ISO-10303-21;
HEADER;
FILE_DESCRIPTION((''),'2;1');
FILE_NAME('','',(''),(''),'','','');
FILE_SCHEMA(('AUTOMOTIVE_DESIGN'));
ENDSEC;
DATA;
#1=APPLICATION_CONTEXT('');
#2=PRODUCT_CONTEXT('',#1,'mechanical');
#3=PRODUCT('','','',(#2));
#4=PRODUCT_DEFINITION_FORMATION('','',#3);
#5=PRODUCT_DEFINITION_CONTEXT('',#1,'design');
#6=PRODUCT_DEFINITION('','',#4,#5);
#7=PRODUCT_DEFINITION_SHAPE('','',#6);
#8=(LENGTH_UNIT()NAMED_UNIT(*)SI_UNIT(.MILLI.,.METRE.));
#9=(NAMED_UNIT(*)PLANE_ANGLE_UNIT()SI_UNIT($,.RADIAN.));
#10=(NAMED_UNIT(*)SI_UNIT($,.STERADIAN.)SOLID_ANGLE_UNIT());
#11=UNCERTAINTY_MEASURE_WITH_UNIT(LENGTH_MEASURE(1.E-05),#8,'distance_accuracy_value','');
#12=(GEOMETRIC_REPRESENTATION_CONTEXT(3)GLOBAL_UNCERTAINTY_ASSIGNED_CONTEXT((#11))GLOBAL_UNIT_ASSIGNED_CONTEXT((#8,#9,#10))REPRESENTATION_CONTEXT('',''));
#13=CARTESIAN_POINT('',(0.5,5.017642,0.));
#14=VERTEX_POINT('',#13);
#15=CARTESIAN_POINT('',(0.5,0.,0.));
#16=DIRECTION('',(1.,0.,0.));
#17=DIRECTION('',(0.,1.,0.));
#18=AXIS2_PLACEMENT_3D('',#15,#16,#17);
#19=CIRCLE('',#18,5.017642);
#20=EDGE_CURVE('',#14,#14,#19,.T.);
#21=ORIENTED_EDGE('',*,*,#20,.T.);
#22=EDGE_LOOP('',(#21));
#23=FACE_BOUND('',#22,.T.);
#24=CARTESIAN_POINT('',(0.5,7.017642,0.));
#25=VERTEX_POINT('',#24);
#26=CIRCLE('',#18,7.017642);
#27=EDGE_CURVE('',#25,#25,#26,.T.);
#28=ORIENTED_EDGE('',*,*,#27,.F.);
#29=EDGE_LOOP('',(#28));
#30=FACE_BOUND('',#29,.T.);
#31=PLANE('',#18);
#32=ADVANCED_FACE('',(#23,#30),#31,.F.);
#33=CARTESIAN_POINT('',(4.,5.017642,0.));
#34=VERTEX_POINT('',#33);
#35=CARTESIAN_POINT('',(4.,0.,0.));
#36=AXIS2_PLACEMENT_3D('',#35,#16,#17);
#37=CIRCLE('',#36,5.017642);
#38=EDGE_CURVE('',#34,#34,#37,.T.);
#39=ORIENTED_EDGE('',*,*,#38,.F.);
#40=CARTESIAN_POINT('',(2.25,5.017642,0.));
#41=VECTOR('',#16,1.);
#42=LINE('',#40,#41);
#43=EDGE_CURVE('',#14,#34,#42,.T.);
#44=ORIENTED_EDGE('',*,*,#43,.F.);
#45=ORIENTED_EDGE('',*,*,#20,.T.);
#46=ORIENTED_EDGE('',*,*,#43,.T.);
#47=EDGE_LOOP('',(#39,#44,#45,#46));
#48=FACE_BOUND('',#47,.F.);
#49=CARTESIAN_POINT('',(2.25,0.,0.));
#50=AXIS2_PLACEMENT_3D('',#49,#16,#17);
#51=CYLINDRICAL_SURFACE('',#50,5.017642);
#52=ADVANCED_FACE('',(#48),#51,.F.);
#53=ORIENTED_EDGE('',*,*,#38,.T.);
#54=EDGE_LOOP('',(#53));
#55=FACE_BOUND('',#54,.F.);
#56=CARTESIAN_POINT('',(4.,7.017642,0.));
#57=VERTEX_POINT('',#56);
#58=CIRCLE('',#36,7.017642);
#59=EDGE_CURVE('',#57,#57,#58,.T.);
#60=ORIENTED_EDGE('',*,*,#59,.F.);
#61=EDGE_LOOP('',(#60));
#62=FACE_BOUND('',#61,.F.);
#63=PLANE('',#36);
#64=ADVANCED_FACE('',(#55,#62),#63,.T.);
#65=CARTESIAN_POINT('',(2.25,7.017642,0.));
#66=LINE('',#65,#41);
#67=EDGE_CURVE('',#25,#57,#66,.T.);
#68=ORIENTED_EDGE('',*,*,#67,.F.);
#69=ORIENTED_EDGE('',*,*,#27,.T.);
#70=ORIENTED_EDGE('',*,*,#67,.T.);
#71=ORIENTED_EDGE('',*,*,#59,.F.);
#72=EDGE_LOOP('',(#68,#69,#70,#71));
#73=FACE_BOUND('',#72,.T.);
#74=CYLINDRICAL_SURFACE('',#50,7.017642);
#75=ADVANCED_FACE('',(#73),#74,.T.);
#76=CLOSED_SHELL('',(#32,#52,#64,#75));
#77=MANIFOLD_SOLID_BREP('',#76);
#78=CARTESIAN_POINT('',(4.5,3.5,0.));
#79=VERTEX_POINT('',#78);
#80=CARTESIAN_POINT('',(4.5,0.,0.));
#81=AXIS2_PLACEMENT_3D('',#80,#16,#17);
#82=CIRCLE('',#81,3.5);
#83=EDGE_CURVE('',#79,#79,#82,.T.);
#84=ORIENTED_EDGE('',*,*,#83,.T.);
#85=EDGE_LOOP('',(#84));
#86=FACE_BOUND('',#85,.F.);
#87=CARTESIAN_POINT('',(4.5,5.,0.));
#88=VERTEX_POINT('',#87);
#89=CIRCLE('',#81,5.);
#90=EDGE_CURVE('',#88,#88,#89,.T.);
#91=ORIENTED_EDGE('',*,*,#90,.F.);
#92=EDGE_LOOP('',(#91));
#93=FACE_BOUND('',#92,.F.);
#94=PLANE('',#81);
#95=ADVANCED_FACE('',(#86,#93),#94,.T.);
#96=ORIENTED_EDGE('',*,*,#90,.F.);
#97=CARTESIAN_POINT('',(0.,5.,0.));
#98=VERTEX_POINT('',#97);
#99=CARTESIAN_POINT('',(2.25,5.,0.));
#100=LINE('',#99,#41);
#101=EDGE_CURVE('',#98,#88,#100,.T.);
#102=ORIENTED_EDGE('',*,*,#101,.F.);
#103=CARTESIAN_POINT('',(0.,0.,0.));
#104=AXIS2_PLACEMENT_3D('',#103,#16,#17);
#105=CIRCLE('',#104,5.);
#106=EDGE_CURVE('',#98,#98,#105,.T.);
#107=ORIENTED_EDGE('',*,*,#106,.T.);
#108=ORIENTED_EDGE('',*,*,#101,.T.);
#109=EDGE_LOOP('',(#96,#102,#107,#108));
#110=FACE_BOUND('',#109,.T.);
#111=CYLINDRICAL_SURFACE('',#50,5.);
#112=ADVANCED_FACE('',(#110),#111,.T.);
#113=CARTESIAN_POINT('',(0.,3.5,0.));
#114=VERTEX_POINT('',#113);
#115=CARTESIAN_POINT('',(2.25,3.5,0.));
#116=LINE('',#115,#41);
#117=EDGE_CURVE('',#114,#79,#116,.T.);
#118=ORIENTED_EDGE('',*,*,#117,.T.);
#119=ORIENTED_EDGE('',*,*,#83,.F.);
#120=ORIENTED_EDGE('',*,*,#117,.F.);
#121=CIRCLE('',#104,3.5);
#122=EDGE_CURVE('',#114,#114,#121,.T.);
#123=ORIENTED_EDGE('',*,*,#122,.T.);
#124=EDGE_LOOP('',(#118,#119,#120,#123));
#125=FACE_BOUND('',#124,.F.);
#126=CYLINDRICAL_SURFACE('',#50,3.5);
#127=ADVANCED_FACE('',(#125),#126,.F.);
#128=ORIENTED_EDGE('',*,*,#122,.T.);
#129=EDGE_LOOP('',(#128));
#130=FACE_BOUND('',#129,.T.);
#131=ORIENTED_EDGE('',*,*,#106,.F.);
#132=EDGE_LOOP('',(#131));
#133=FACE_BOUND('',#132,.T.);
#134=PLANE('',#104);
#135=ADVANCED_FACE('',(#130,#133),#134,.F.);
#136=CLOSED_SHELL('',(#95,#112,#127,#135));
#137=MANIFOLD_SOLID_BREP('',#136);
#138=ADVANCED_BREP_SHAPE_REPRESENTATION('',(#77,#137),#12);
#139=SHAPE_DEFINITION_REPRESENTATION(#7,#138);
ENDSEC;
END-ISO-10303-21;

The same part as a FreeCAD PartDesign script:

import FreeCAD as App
import Part
import Sketcher

V = App.Vector

doc = App.newDocument("Part")
body = doc.addObject("PartDesign::Body", "Body")

sketch1 = body.newObject("Sketcher::SketchObject", "Sketch")
sketch1.AttachmentSupport = (doc.getObject("XY_Plane"), [""])
sketch1.MapMode = "FlatFace"
sketch1.addGeometry(Part.LineSegment(V(0, 5, 0), V(0, 3.5, 0)), False)
sketch1.addGeometry(Part.LineSegment(V(0, 3.5, 0), V(4.5, 3.5, 0)), False)
sketch1.addGeometry(Part.LineSegment(V(4.5, 3.5, 0), V(4.5, 5, 0)), False)
sketch1.addGeometry(Part.LineSegment(V(4.5, 5, 0), V(0, 5, 0)), False)
sketch1.addConstraint(Sketcher.Constraint("Coincident", 0, 2, 1, 1))
sketch1.addConstraint(Sketcher.Constraint("Coincident", 1, 2, 2, 1))
sketch1.addConstraint(Sketcher.Constraint("Coincident", 2, 2, 3, 1))
sketch1.addConstraint(Sketcher.Constraint("Coincident", 3, 2, 0, 1))
sketch1.addConstraint(Sketcher.Constraint("Vertical", 0))
sketch1.addConstraint(Sketcher.Constraint("Horizontal", 1))
sketch1.addConstraint(Sketcher.Constraint("Vertical", 2))
sketch1.addConstraint(Sketcher.Constraint("Horizontal", 3))
sketch1.addConstraint(Sketcher.Constraint("PointOnObject", 0, 2, -2))
sketch1.addConstraint(Sketcher.Constraint("DistanceX", 1, 1, 1, 2, 4.5))
sketch1.addConstraint(Sketcher.Constraint("DistanceY", 0, 2, 0, 1, 1.5))
sketch1.addConstraint(Sketcher.Constraint("DistanceY", -1, 1, 2, 2, 5.0))
revolution = body.newObject("PartDesign::Revolution", "Revolution")
revolution.Profile = sketch1
revolution.ReferenceAxis = (sketch1, ["H_Axis"])
revolution.Angle = 360
body2 = doc.addObject("PartDesign::Body", "Body001")

sketch2 = body2.newObject("Sketcher::SketchObject", "Sketch001")
sketch2.AttachmentSupport = (doc.getObject("XY_Plane001"), [""])
sketch2.MapMode = "FlatFace"
sketch2.addGeometry(Part.LineSegment(V(0.5, 7, 0), V(0.5, 5, 0)), False)
sketch2.addGeometry(Part.LineSegment(V(0.5, 5, 0), V(4, 5, 0)), False)
sketch2.addGeometry(Part.LineSegment(V(4, 5, 0), V(4, 7, 0)), False)
sketch2.addGeometry(Part.LineSegment(V(4, 7, 0), V(0.5, 7, 0)), False)
sketch2.addConstraint(Sketcher.Constraint("Coincident", 0, 2, 1, 1))
sketch2.addConstraint(Sketcher.Constraint("Coincident", 1, 2, 2, 1))
sketch2.addConstraint(Sketcher.Constraint("Coincident", 2, 2, 3, 1))
sketch2.addConstraint(Sketcher.Constraint("Coincident", 3, 2, 0, 1))
sketch2.addConstraint(Sketcher.Constraint("Vertical", 0))
sketch2.addConstraint(Sketcher.Constraint("Horizontal", 1))
sketch2.addConstraint(Sketcher.Constraint("Vertical", 2))
sketch2.addConstraint(Sketcher.Constraint("Horizontal", 3))
sketch2.addConstraint(Sketcher.Constraint("DistanceY", 0, 2, 0, 1, 2.0))
sketch2.addConstraint(Sketcher.Constraint("DistanceX", 1, 1, 1, 2, 3.5))
sketch2.addConstraint(Sketcher.Constraint("DistanceX", -1, 1, 1, 2, 4.0))
sketch2.addConstraint(Sketcher.Constraint("DistanceY", -1, 1, 0, 2, 5.017642))
revolution2 = body2.newObject("PartDesign::Revolution", "Revolution001")
revolution2.Profile = sketch2
revolution2.ReferenceAxis = (sketch2, ["H_Axis"])
revolution2.Angle = 360

doc.recompute()
